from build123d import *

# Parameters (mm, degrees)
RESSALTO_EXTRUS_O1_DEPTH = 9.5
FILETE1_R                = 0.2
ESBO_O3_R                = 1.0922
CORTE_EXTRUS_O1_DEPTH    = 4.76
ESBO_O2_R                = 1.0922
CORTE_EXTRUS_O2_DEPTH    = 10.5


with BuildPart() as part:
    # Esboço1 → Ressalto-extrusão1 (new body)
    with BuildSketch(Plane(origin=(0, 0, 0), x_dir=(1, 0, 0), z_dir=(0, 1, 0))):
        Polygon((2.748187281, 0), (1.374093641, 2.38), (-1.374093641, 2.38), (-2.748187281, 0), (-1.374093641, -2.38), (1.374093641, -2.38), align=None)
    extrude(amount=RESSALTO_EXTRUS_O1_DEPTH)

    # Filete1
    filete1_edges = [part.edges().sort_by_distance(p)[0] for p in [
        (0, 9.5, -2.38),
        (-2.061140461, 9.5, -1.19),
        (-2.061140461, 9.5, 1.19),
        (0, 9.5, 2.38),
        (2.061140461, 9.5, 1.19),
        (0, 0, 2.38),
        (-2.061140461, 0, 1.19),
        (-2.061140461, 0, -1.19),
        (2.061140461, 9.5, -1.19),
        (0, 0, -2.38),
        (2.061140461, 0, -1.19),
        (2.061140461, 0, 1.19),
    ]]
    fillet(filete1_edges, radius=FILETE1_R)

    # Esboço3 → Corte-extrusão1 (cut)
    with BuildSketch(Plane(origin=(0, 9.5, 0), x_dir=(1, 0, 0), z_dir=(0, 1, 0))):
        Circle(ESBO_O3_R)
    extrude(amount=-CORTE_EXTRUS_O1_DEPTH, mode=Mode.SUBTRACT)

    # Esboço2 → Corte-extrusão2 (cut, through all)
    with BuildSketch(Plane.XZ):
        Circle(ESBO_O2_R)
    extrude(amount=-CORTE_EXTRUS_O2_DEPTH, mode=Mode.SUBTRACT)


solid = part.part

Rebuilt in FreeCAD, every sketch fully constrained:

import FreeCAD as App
import Part
import Sketcher
from FreeCAD import Vector
Q = App.Units.Quantity


def edges_at(feature, points):
    """Names of the edges that pass closest to the given points."""
    edges = feature.Shape.Edges
    near = lambda p: min(range(len(edges)), key=lambda i: edges[i].distToShape(Part.Vertex(*p))[0])
    return sorted({f"Edge{near(p) + 1}" for p in points})


def add_polygon(sketch, points):
    """Adds a closed chain of lines whose ends are joined by coincident constraints."""
    first, n = sketch.GeometryCount, len(points)
    for a, b in zip(points, points[1:] + points[:1]):
        sketch.addGeometry(Part.LineSegment(App.Vector(*a, 0), App.Vector(*b, 0)), False)
    for i in range(n):
        sketch.addConstraint(Sketcher.Constraint("Coincident", first + i, 2, first + (i + 1) % n, 1))

doc = App.newDocument("Part")
params = doc.addObject("Spreadsheet::Sheet", "Params")
for row, (alias, value) in enumerate([
    ("pad1_length", "9.5 mm"),
    ("fillet_radius", "0.2 mm"),
    ("pocket1_length", "4.76 mm"),
], start=1):
    params.set(f"A{row}", alias)
    params.set(f"B{row}", "=" + value)
    params.setAlias(f"B{row}", alias)

body = doc.addObject("PartDesign::Body", "Body")

# Sketch on XZ plane
sketch1 = body.newObject("Sketcher::SketchObject", "Sketch")
sketch1.AttachmentSupport = (doc.getObject("XZ_Plane"), [""])
sketch1.MapMode = "FlatFace"
add_polygon(sketch1, [(2.7, 0), (1.4, -2.4), (-1.4, -2.4), (-2.7, 0), (-1.4, 2.4), (1.4, 2.4)])  # lines 0-5
sketch1.addConstraint(Sketcher.Constraint("Horizontal", 1))
sketch1.addConstraint(Sketcher.Constraint("Horizontal", 4))
sketch1.addConstraint(Sketcher.Constraint("Symmetric", 0, 2, 3, 2, -1, 1))
sketch1.addConstraint(Sketcher.Constraint("Symmetric", 2, 2, 5, 2, -1, 1))
sketch1.addConstraint(Sketcher.Constraint("PointOnObject", 2, 2, -1))
sketch1.addConstraint(Sketcher.Constraint("Parallel", 2, 5))
sketch1.addConstraint(Sketcher.Constraint("Vertical", 1, 2, 3, 2))
sketch1.addConstraint(Sketcher.Constraint("Angle", 0, Q("-120 deg")))
sketch1.addConstraint(Sketcher.Constraint("DistanceY", 0, 2, -1, 1, 2.38))
sketch1.addConstraint(Sketcher.Constraint("DistanceX", 1, 2, 1, 1, 2.748187))
pad1 = body.newObject("PartDesign::Pad", "Pad")
pad1.Profile = sketch1
pad1.setExpression("Length", "Params.pad1_length")
pad1.Reversed = True
doc.recompute()

fillet = body.newObject("PartDesign::Fillet", "Fillet")
fillet.Base = (pad1, edges_at(pad1, [
    (0, 9.5, -2.38),
    (-2.061, 9.5, -1.19),
    (-2.061, 9.5, 1.19),
    (0, 9.5, 2.38),
    (2.061, 9.5, 1.19),
    (0, 0, 2.38),
    (-2.061, 0, 1.19),
    (-2.061, 0, -1.19),
    (2.061, 9.5, -1.19),
    (0, 0, -2.38),
    (2.061, 0, -1.19),
    (2.061, 0, 1.19),
]))
fillet.setExpression("Radius", "Params.fillet_radius")

# Sketch on XZ plane
sketch2 = body.newObject("Sketcher::SketchObject", "Sketch001")
sketch2.AttachmentSupport = (doc.getObject("XZ_Plane"), [""])
sketch2.MapMode = "FlatFace"
sketch2.AttachmentOffset = App.Placement(Vector(0, 0, -9.5), App.Rotation())
sketch2.addGeometry(Part.Circle(Vector(0, 0, 0), Vector(0, 0, 1), 1.1), False)
sketch2.addConstraint(Sketcher.Constraint("Coincident", 0, 3, -1, 1))
sketch2.addConstraint(Sketcher.Constraint("Diameter", 0, 2.1844))
pocket1 = body.newObject("PartDesign::Pocket", "Pocket")
pocket1.Profile = sketch2
pocket1.setExpression("Length", "Params.pocket1_length")
pocket1.Reversed = True

# Sketch on XZ plane
sketch3 = body.newObject("Sketcher::SketchObject", "Sketch002")
sketch3.AttachmentSupport = (doc.getObject("XZ_Plane"), [""])
sketch3.MapMode = "FlatFace"
sketch3.addGeometry(Part.Circle(Vector(0, 0, 0), Vector(0, 0, 1), 1.1), False)
sketch3.addConstraint(Sketcher.Constraint("Coincident", 0, 3, -1, 1))
sketch3.addConstraint(Sketcher.Constraint("Diameter", 0, 2.1844))
pocket2 = body.newObject("PartDesign::Pocket", "Pocket001")
pocket2.Profile = sketch3
pocket2.Type = "ThroughAll"

doc.recompute()
